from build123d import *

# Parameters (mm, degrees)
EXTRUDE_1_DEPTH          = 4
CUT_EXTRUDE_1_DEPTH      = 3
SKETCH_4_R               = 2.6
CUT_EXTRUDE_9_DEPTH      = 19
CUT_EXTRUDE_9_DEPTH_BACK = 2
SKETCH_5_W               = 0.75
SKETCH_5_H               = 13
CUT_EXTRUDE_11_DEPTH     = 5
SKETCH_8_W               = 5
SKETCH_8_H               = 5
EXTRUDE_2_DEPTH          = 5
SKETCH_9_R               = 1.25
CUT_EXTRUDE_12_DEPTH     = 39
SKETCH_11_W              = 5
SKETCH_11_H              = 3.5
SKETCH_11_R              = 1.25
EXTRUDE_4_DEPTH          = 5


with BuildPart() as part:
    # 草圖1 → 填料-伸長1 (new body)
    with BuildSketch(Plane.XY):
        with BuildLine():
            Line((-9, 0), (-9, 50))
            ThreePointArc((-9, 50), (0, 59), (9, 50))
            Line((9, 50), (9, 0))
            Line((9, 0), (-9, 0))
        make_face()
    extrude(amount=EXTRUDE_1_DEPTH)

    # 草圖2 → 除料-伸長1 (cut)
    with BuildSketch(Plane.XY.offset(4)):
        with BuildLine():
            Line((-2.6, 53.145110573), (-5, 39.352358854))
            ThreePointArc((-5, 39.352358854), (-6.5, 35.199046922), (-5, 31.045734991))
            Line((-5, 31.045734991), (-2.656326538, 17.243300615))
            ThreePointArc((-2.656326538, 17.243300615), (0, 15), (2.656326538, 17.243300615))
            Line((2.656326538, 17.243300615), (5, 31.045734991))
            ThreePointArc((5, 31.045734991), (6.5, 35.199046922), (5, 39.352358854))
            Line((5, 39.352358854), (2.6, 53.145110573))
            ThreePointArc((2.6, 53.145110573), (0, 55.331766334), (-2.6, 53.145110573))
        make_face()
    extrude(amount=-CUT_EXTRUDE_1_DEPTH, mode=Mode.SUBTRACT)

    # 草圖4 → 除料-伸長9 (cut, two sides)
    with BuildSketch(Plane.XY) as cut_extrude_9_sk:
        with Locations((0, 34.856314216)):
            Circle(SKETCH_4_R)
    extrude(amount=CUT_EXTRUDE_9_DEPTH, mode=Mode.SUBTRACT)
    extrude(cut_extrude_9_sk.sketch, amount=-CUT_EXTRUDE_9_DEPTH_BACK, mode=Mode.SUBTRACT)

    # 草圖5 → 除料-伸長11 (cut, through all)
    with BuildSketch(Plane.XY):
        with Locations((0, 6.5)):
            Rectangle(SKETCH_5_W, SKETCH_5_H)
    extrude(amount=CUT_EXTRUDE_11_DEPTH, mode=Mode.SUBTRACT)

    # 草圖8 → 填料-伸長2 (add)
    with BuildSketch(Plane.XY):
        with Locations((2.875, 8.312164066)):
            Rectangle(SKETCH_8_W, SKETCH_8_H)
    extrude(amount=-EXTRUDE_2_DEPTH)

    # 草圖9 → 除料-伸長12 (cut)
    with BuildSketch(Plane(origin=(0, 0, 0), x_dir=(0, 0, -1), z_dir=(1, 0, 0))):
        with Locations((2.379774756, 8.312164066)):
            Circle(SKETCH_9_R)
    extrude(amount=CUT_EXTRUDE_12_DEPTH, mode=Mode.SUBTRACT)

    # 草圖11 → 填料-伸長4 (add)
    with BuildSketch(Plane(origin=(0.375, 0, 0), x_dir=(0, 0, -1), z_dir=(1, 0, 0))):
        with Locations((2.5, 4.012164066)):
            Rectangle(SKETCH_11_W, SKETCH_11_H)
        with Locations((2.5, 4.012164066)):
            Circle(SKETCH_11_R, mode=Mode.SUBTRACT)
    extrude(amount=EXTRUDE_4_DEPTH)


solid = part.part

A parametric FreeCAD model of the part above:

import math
import FreeCAD as App
import Part
import Sketcher
Q = App.Units.Quantity


def add_polygon(sketch, points):
    """Adds a closed chain of lines whose ends are joined by coincident constraints."""
    first, n = sketch.GeometryCount, len(points)
    for a, b in zip(points, points[1:] + points[:1]):
        sketch.addGeometry(Part.LineSegment(App.Vector(*a, 0), App.Vector(*b, 0)), False)
    for i in range(n):
        sketch.addConstraint(Sketcher.Constraint("Coincident", first + i, 2, first + (i + 1) % n, 1))

doc = App.newDocument("Part")
params = doc.addObject("Spreadsheet::Sheet", "Params")
for row, (alias, value) in enumerate([
    ("sketch1_radius", "9 mm"),
    ("sketch1_height", "50 mm"),
    ("pad1_length", "4 mm"),
    ("sketch2_radius", "6.5 mm"),
    ("sketch2_length", "14 mm"),
    ("pocket1_length", "3 mm"),
    ("sketch3_diameter", "5.2 mm"),
    ("sketch4_height", "13 mm"),
    ("sketch4_width", "0.75 mm"),
    ("sketch5_width", "5 mm"),
    ("pad2_length", "5 mm"),
    ("sketch6_diameter", "2.5 mm"),
    ("pocket4_length", "39 mm"),
    ("sketch7_diameter", "2.5 mm"),
    ("sketch7_height", "5 mm"),
    ("sketch7_width", "3.5 mm"),
    ("pad3_length", "5 mm"),
], start=1):
    params.set(f"A{row}", alias)
    params.set(f"B{row}", "=" + value)
    params.setAlias(f"B{row}", alias)

body = doc.addObject("PartDesign::Body", "Body")

# Sketch on XY plane
sketch1 = body.newObject("Sketcher::SketchObject", "Sketch")
sketch1.AttachmentSupport = (doc.getObject("XY_Plane"), [""])
sketch1.MapMode = "FlatFace"
sketch1.addGeometry([
    Part.LineSegment(App.Vector(-9, 50, 0), App.Vector(-9, 0, 0)),
    Part.LineSegment(App.Vector(-9, 0, 0), App.Vector(9, 0, 0)),
    Part.LineSegment(App.Vector(9, 0, 0), App.Vector(9, 50, 0)),
    Part.ArcOfCircle(Part.Circle(App.Vector(0, 50, 0), App.Vector(0, 0, 1), 9), math.radians(0), math.radians(180)),
], False)
sketch1.addConstraint([
    Sketcher.Constraint("Coincident", 0, 2, 1, 1),
    Sketcher.Constraint("Coincident", 1, 2, 2, 1),
    Sketcher.Constraint("Tangent", 2, 2, 3, 1),
    Sketcher.Constraint("Tangent", 3, 2, 0, 1),
    Sketcher.Constraint("Vertical", 0),
    Sketcher.Constraint("Horizontal", 1),
    Sketcher.Constraint("Vertical", 2),
    Sketcher.Constraint("Symmetric", 0, 2, 1, 2, -1, 1),
    Sketcher.Constraint("Radius", 3, Q("9 mm")),
    Sketcher.Constraint("DistanceY", 0, 2, 0, 1, Q("50 mm")),
])
sketch1.setExpression("Constraints[8]", "Params.sketch1_radius")
sketch1.setExpression("Constraints[9]", "Params.sketch1_height")
pad1 = body.newObject("PartDesign::Pad", "Pad")
pad1.Profile = sketch1
pad1.setExpression("Length", "Params.pad1_length")

# Sketch on XY plane
sketch2 = body.newObject("Sketcher::SketchObject", "Sketch001")
sketch2.AttachmentSupport = (doc.getObject("XY_Plane"), [""])
sketch2.MapMode = "FlatFace"
sketch2.AttachmentOffset = App.Placement(App.Vector(0, 0, 4), App.Rotation())
sketch2.addGeometry([
    Part.LineSegment(App.Vector(-2.6, 53.1, 0), App.Vector(-5, 39.4, 0)),  # 0
    Part.ArcOfCircle(Part.Circle(App.Vector(0, 35.2, 0), App.Vector(0, 0, 1), 6.5), math.radians(140), math.radians(220)),  # 1
    Part.LineSegment(App.Vector(-5, 31, 0), App.Vector(-2.7, 17.2, 0)),  # 2
    Part.ArcOfCircle(Part.Circle(App.Vector(0, 17.7, 0), App.Vector(0, 0, 1), 2.7), math.radians(-170), math.radians(-10)),  # 3
    Part.LineSegment(App.Vector(2.7, 17.2, 0), App.Vector(5, 31, 0)),  # 4
    Part.ArcOfCircle(Part.Circle(App.Vector(0, 35.2, 0), App.Vector(0, 0, 1), 6.5), math.radians(-40), math.radians(40)),  # 5
    Part.LineSegment(App.Vector(5, 39.4, 0), App.Vector(2.6, 53.1, 0)),  # 6
    Part.ArcOfCircle(Part.Circle(App.Vector(0, 52.7, 0), App.Vector(0, 0, 1), 2.6), math.radians(10), math.radians(170)),  # 7
], False)
sketch2.addConstraint([
    Sketcher.Constraint("Coincident", 0, 2, 1, 1),
    Sketcher.Constraint("Coincident", 1, 2, 2, 1),
    Sketcher.Constraint("Tangent", 2, 2, 3, 1),
    Sketcher.Constraint("Tangent", 3, 2, 4, 1),
    Sketcher.Constraint("Coincident", 4, 2, 5, 1),
    Sketcher.Constraint("Coincident", 5, 2, 6, 1),
    Sketcher.Constraint("Tangent", 6, 2, 7, 1),
    Sketcher.Constraint("Tangent", 7, 2, 0, 1),
    Sketcher.Constraint("Coincident", 5, 3, 1, 3),
    Sketcher.Constraint("Equal", 1, 5),
    Sketcher.Constraint("Symmetric", 2, 2, 3, 2, -2),
    Sketcher.Constraint("Symmetric", 0, 2, 5, 2, -2),
    Sketcher.Constraint("PointOnObject", 7, 3, -2),
    Sketcher.Constraint("Vertical", 0, 2, 1, 2),
    Sketcher.Constraint("Equal", 0, 2),
    Sketcher.Constraint("Radius", 1, Q("6.5 mm")),
    Sketcher.Constraint("Distance", 0, Q("14 mm")),
    Sketcher.Constraint("DistanceX", 0, 2, -1, 1, Q("5 mm")),
    Sketcher.Constraint("DistanceX", -1, 1, 6, 2, Q("2.6 mm")),
    Sketcher.Constraint("Radius", 3, Q("2.694349 mm")),
    Sketcher.Constraint("DistanceY", -1, 1, 7, 3, Q("52.692699 mm")),
])
sketch2.setExpression("Constraints[15]", "Params.sketch2_radius")
sketch2.setExpression("Constraints[16]", "Params.sketch2_length")
pocket1 = body.newObject("PartDesign::Pocket", "Pocket")
pocket1.Profile = sketch2
pocket1.setExpression("Length", "Params.pocket1_length")

# Sketch on XY plane
sketch3 = body.newObject("Sketcher::SketchObject", "Sketch002")
sketch3.AttachmentSupport = (doc.getObject("XY_Plane"), [""])
sketch3.MapMode = "FlatFace"
sketch3.addGeometry(Part.Circle(App.Vector(0, 34.9, 0), App.Vector(0, 0, 1), 2.6), False)
sketch3.addConstraint([
    Sketcher.Constraint("PointOnObject", 0, 3, -2),
    Sketcher.Constraint("Diameter", 0, Q("5.2 mm")),
    Sketcher.Constraint("DistanceY", -1, 1, 0, 3, Q("34.856314 mm")),
])
sketch3.setExpression("Constraints[1]", "Params.sketch3_diameter")
pocket2 = body.newObject("PartDesign::Pocket", "Pocket001")
pocket2.Profile = sketch3
pocket2.Type = "ThroughAll"
pocket2.Midplane = True

# Sketch on XY plane
sketch4 = body.newObject("Sketcher::SketchObject", "Sketch003")
sketch4.AttachmentSupport = (doc.getObject("XY_Plane"), [""])
sketch4.MapMode = "FlatFace"
add_polygon(sketch4, [(-0.4, 13), (-0.4, 0), (0.4, 0), (0.4, 13)])  # lines 0-3
sketch4.addConstraint([
    Sketcher.Constraint("Vertical", 0),
    Sketcher.Constraint("Horizontal", 1),
    Sketcher.Constraint("Vertical", 2),
    Sketcher.Constraint("Horizontal", 3),
    Sketcher.Constraint("Symmetric", 0, 2, 1, 2, -1, 1),
    Sketcher.Constraint("DistanceY", 0, 2, 0, 1, Q("13 mm")),
    Sketcher.Constraint("DistanceX", 1, 1, 1, 2, Q("0.75 mm")),
])
sketch4.setExpression("Constraints[9]", "Params.sketch4_height")
sketch4.setExpression("Constraints[10]", "Params.sketch4_width")
pocket3 = body.newObject("PartDesign::Pocket", "Pocket002")
pocket3.Profile = sketch4
pocket3.Type = "ThroughAll"
pocket3.Reversed = True

# Sketch on XY plane
sketch5 = body.newObject("Sketcher::SketchObject", "Sketch004")
sketch5.AttachmentSupport = (doc.getObject("XY_Plane"), [""])
sketch5.MapMode = "FlatFace"
add_polygon(sketch5, [(0.4, 10.8), (0.4, 5.8), (5.4, 5.8), (5.4, 10.8)])  # lines 0-3
sketch5.addConstraint([
    Sketcher.Constraint("Vertical", 0),
    Sketcher.Constraint("Horizontal", 1),
    Sketcher.Constraint("Vertical", 2),
    Sketcher.Constraint("Horizontal", 3),
    Sketcher.Constraint("Equal", 3, 0),
    Sketcher.Constraint("DistanceX", 1, 1, 1, 2, Q("5 mm")),
    Sketcher.Constraint("DistanceX", -1, 1, 0, 2, Q("0.375 mm")),
    Sketcher.Constraint("DistanceY", -1, 1, 0, 2, Q("5.812164 mm")),
])
sketch5.setExpression("Constraints[9]", "Params.sketch5_width")
pad2 = body.newObject("PartDesign::Pad", "Pad001")
pad2.Profile = sketch5
pad2.setExpression("Length", "Params.pad2_length")
pad2.Reversed = True

# Sketch on YZ plane
sketch6 = body.newObject("Sketcher::SketchObject", "Sketch005")
sketch6.AttachmentSupport = (doc.getObject("YZ_Plane"), [""])
sketch6.MapMode = "FlatFace"
sketch6.addGeometry(Part.Circle(App.Vector(8.3, -2.4, 0), App.Vector(0, 0, 1), 1.2), False)
sketch6.addConstraint([
    Sketcher.Constraint("Diameter", 0, Q("2.5 mm")),
    Sketcher.Constraint("DistanceX", -1, 1, 0, 3, Q("8.312164 mm")),
    Sketcher.Constraint("DistanceY", 0, 3, -1, 1, Q("2.379775 mm")),
])
sketch6.setExpression("Constraints[0]", "Params.sketch6_diameter")
pocket4 = body.newObject("PartDesign::Pocket", "Pocket003")
pocket4.Profile = sketch6
pocket4.setExpression("Length", "Params.pocket4_length")
pocket4.Reversed = True

# Sketch on YZ plane
sketch7 = body.newObject("Sketcher::SketchObject", "Sketch006")
sketch7.AttachmentSupport = (doc.getObject("YZ_Plane"), [""])
sketch7.MapMode = "FlatFace"
sketch7.AttachmentOffset = App.Placement(App.Vector(0, 0, 0.375), App.Rotation())
add_polygon(sketch7, [(5.8, 0), (2.3, 0), (2.3, -5), (5.8, -5)])  # lines 0-3
sketch7.addGeometry(Part.Circle(App.Vector(4, -2.5, 0), App.Vector(0, 0, 1), 1.2), False)  # 4
sketch7.addConstraint([
    Sketcher.Constraint("Horizontal", 0),
    Sketcher.Constraint("Vertical", 1),
    Sketcher.Constraint("Horizontal", 2),
    Sketcher.Constraint("Vertical", 3),
    Sketcher.Constraint("PointOnObject", 0, 2, -1),
    Sketcher.Constraint("Diameter", 4, Q("2.5 mm")),
    Sketcher.Constraint("DistanceY", 1, 2, 1, 1, Q("5 mm")),
    Sketcher.Constraint("DistanceX", 0, 2, 0, 1, Q("3.5 mm")),
    Sketcher.Constraint("DistanceY", 4, 3, -1, 1, Q("2.5 mm")),
    Sketcher.Constraint("DistanceX", 0, 2, 4, 3, Q("1.75 mm")),
    Sketcher.Constraint("DistanceX", -1, 1, 4, 3, Q("4.012164 mm")),
])
sketch7.setExpression("Constraints[9]", "Params.sketch7_diameter")
sketch7.setExpression("Constraints[10]", "Params.sketch7_height")
sketch7.setExpression("Constraints[11]", "Params.sketch7_width")
pad3 = body.newObject("PartDesign::Pad", "Pad002")
pad3.Profile = sketch7
pad3.setExpression("Length", "Params.pad3_length")

doc.recompute()
